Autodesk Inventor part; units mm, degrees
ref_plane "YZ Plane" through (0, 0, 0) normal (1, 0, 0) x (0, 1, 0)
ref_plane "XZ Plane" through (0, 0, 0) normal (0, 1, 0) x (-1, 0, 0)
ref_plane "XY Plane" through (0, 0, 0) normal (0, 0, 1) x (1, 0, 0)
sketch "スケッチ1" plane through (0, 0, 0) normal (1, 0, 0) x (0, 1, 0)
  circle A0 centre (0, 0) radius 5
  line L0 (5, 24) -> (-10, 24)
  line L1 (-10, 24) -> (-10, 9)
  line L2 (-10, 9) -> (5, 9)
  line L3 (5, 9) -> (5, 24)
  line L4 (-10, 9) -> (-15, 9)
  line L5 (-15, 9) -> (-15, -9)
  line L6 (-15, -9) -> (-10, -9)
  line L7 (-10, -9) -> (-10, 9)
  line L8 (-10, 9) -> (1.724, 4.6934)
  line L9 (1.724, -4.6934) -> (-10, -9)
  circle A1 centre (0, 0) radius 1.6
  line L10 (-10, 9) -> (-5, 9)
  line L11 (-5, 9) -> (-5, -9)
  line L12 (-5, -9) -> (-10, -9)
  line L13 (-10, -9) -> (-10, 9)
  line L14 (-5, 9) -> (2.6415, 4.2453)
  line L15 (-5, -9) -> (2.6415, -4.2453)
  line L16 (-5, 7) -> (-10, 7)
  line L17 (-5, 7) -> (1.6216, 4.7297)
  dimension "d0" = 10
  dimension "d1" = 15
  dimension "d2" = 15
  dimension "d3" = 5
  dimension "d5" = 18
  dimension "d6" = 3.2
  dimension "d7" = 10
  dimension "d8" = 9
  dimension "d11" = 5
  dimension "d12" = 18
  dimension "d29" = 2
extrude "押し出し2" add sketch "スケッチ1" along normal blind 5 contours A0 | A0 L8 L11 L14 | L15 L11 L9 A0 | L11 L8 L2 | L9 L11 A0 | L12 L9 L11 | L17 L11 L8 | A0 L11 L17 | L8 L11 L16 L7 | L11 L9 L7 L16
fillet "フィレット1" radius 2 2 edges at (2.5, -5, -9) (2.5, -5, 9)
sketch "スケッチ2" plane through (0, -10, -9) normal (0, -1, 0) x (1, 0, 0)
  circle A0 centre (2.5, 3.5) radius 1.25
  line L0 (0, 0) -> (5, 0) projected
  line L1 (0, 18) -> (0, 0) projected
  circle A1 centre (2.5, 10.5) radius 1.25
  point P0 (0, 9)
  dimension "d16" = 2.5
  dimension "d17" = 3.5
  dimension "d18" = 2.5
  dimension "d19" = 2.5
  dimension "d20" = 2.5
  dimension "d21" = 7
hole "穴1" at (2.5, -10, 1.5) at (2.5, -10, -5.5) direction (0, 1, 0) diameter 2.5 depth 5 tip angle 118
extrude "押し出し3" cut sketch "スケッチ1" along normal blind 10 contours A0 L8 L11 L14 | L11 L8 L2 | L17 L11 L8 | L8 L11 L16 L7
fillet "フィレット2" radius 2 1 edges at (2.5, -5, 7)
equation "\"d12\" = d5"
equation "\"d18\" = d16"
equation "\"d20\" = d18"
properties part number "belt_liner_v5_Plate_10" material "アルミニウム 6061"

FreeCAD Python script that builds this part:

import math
import FreeCAD as App
import Part
import Sketcher

V = App.Vector
Q = App.Units.Quantity


def edges_at(feature, points):
    """Names of the edges that pass closest to the given points."""
    edges = feature.Shape.Edges
    near = lambda p: min(range(len(edges)), key=lambda i: edges[i].distToShape(Part.Vertex(*p))[0])
    return sorted({f"Edge{near(p) + 1}" for p in points})

doc = App.newDocument("Part")
params = doc.addObject("Spreadsheet::Sheet", "Params")
for row, (alias, value) in enumerate([
    ("sketch1_radius", "5 mm"),
    ("sketch1_diameter", "3.2 mm"),
    ("sketch1_width", "5 mm"),
    ("sketch1_height", "18 mm"),
    ("sketch1_length", "9 mm"),
    ("pad1_length", "5 mm"),
    ("fillet_radius", "2 mm"),
    ("sketch2_diameter", "2.5 mm"),
    ("hole_diameter", "2.5 mm"),
    ("hole_depth", "5 mm"),
    ("sketch3_radius", "5 mm"),
    ("sketch3_width", "5 mm"),
    ("sketch3_height", "2 mm"),
    ("sketch3_length", "9 mm"),
    ("pocket1_length", "10 mm"),
    ("fillet2_radius", "2 mm"),
], start=1):
    params.set(f"A{row}", alias)
    params.set(f"B{row}", "=" + value)
    params.setAlias(f"B{row}", alias)

body = doc.addObject("PartDesign::Body", "Body")

sketch1 = body.newObject("Sketcher::SketchObject", "Sketch")
sketch1.AttachmentSupport = (doc.getObject("YZ_Plane"), [""])
sketch1.MapMode = "FlatFace"
sketch1.addGeometry(Part.ArcOfCircle(Part.Circle(V(0, 0, 0), V(0, 0, 1), 5), math.radians(-58), math.radians(58)), False)
sketch1.addGeometry(Part.LineSegment(V(2.6, 4.2, 0), V(-5, 9, 0)), False)
sketch1.addGeometry(Part.LineSegment(V(-5, 9, 0), V(-10, 9, 0)), False)
sketch1.addGeometry(Part.LineSegment(V(-10, 9, 0), V(-10, -9, 0)), False)
sketch1.addGeometry(Part.LineSegment(V(-10, -9, 0), V(-5, -9, 0)), False)
sketch1.addGeometry(Part.LineSegment(V(-5, -9, 0), V(2.6, -4.2, 0)), False)
sketch1.addGeometry(Part.Circle(V(0, 0, 0), V(0, 0, 1), 1.6), False)
sketch1.addConstraint(Sketcher.Constraint("Tangent", 0, 2, 1, 1))
sketch1.addConstraint(Sketcher.Constraint("Coincident", 1, 2, 2, 1))
sketch1.addConstraint(Sketcher.Constraint("Coincident", 2, 2, 3, 1))
sketch1.addConstraint(Sketcher.Constraint("Coincident", 3, 2, 4, 1))
sketch1.addConstraint(Sketcher.Constraint("Coincident", 4, 2, 5, 1))
sketch1.addConstraint(Sketcher.Constraint("Tangent", 5, 2, 0, 1))
sketch1.addConstraint(Sketcher.Constraint("Horizontal", 2))
sketch1.addConstraint(Sketcher.Constraint("Vertical", 3))
sketch1.addConstraint(Sketcher.Constraint("Horizontal", 4))
sketch1.addConstraint(Sketcher.Constraint("Coincident", 0, 3, -1, 1))
sketch1.addConstraint(Sketcher.Constraint("Coincident", 6, 3, -1, 1))
sketch1.addConstraint(Sketcher.Constraint("Symmetric", 1, 2, 4, 2, -1))
sketch1.addConstraint(Sketcher.Constraint("Radius", 0, Q("5 mm")))
sketch1.addConstraint(Sketcher.Constraint("Diameter", 6, Q("3.2 mm")))
sketch1.addConstraint(Sketcher.Constraint("DistanceX", 2, 2, 2, 1, Q("5 mm")))
sketch1.addConstraint(Sketcher.Constraint("DistanceY", 3, 2, 3, 1, Q("18 mm")))
sketch1.addConstraint(Sketcher.Constraint("Distance", 1, Q("9 mm")))
sketch1.setExpression("Constraints[12]", "Params.sketch1_radius")
sketch1.setExpression("Constraints[13]", "Params.sketch1_diameter")
sketch1.setExpression("Constraints[14]", "Params.sketch1_width")
sketch1.setExpression("Constraints[15]", "Params.sketch1_height")
sketch1.setExpression("Constraints[16]", "Params.sketch1_length")
pad1 = body.newObject("PartDesign::Pad", "Pad")
pad1.Profile = sketch1
pad1.setExpression("Length", "Params.pad1_length")
doc.recompute()

fillet = body.newObject("PartDesign::Fillet", "Fillet")
fillet.Base = (pad1, edges_at(pad1, [(2.5, -5, -9), (2.5, -5, 9)]))
fillet.setExpression("Radius", "Params.fillet_radius")

sketch2 = body.newObject("Sketcher::SketchObject", "Sketch001")
sketch2.AttachmentSupport = (doc.getObject("XZ_Plane"), [""])
sketch2.MapMode = "FlatFace"
sketch2.AttachmentOffset = App.Placement(V(0, 0, 10), App.Rotation())
sketch2.addGeometry(Part.Circle(V(2.5, 1.5, 0), V(0, 0, 1), 1.2), False)
sketch2.addGeometry(Part.Circle(V(2.5, -5.5, 0), V(0, 0, 1), 1.2), False)
sketch2.addConstraint(Sketcher.Constraint("Equal", 0, 1))
sketch2.addConstraint(Sketcher.Constraint("Vertical", 0, 3, 1, 3))
sketch2.addConstraint(Sketcher.Constraint("Diameter", 0, Q("2.5 mm")))
sketch2.addConstraint(Sketcher.Constraint("DistanceY", 1, 3, 0, 3, Q("7 mm")))
sketch2.addConstraint(Sketcher.Constraint("DistanceX", -1, 1, 0, 3, Q("2.5 mm")))
sketch2.addConstraint(Sketcher.Constraint("DistanceY", -1, 1, 0, 3, Q("1.5 mm")))
sketch2.setExpression("Constraints[2]", "Params.sketch2_diameter")
doc.recompute()
hole = body.newObject("PartDesign::Hole", "Hole")
hole.Profile = sketch2
hole.ThreadType = "None"
hole.setExpression("Diameter", "Params.hole_diameter")
hole.DepthType = "Dimension"
hole.setExpression("Depth", "Params.hole_depth")
hole.DrillPoint = "Angled"
hole.DrillPointAngle = 118

sketch3 = body.newObject("Sketcher::SketchObject", "Sketch002")
sketch3.AttachmentSupport = (doc.getObject("YZ_Plane"), [""])
sketch3.MapMode = "FlatFace"
sketch3.addGeometry(Part.LineSegment(V(2.6, 4.2, 0), V(-5, 9, 0)), False)
sketch3.addGeometry(Part.LineSegment(V(-5, 9, 0), V(-10, 9, 0)), False)
sketch3.addGeometry(Part.LineSegment(V(-10, 9, 0), V(-10, 7, 0)), False)
sketch3.addGeometry(Part.LineSegment(V(-10, 7, 0), V(-5, 7, 0)), False)
sketch3.addGeometry(Part.LineSegment(V(-5, 7, 0), V(1.6, 4.7, 0)), False)
sketch3.addGeometry(Part.ArcOfCircle(Part.Circle(V(0, 0, 0), V(0, 0, 1), 5), math.radians(58.11), math.radians(71.08)), False)
sketch3.addConstraint(Sketcher.Constraint("Coincident", 0, 2, 1, 1))
sketch3.addConstraint(Sketcher.Constraint("Coincident", 1, 2, 2, 1))
sketch3.addConstraint(Sketcher.Constraint("Coincident", 2, 2, 3, 1))
sketch3.addConstraint(Sketcher.Constraint("Coincident", 3, 2, 4, 1))
sketch3.addConstraint(Sketcher.Constraint("Tangent", 4, 2, 5, 2))
sketch3.addConstraint(Sketcher.Constraint("Tangent", 5, 1, 0, 1))
sketch3.addConstraint(Sketcher.Constraint("Horizontal", 1))
sketch3.addConstraint(Sketcher.Constraint("Vertical", 2))
sketch3.addConstraint(Sketcher.Constraint("Horizontal", 3))
sketch3.addConstraint(Sketcher.Constraint("Coincident", 5, 3, -1, 1))
sketch3.addConstraint(Sketcher.Constraint("Vertical", 0, 2, 3, 2))
sketch3.addConstraint(Sketcher.Constraint("Radius", 5, Q("5 mm")))
sketch3.addConstraint(Sketcher.Constraint("DistanceX", 1, 2, 1, 1, Q("5 mm")))
sketch3.addConstraint(Sketcher.Constraint("DistanceY", 2, 2, 2, 1, Q("2 mm")))
sketch3.addConstraint(Sketcher.Constraint("Distance", 0, Q("9 mm")))
sketch3.addConstraint(Sketcher.Constraint("DistanceX", 0, 2, -1, 1, Q("5 mm")))
sketch3.setExpression("Constraints[11]", "Params.sketch3_radius")
sketch3.setExpression("Constraints[12]", "Params.sketch3_width")
sketch3.setExpression("Constraints[13]", "Params.sketch3_height")
sketch3.setExpression("Constraints[14]", "Params.sketch3_length")
pocket1 = body.newObject("PartDesign::Pocket", "Pocket")
pocket1.Profile = sketch3
pocket1.setExpression("Length", "Params.pocket1_length")
pocket1.Reversed = True
doc.recompute()

fillet2 = body.newObject("PartDesign::Fillet", "Fillet001")
fillet2.Base = (pocket1, edges_at(pocket1, [(2.5, -5, 7)]))
fillet2.setExpression("Radius", "Params.fillet2_radius")

doc.recompute()
